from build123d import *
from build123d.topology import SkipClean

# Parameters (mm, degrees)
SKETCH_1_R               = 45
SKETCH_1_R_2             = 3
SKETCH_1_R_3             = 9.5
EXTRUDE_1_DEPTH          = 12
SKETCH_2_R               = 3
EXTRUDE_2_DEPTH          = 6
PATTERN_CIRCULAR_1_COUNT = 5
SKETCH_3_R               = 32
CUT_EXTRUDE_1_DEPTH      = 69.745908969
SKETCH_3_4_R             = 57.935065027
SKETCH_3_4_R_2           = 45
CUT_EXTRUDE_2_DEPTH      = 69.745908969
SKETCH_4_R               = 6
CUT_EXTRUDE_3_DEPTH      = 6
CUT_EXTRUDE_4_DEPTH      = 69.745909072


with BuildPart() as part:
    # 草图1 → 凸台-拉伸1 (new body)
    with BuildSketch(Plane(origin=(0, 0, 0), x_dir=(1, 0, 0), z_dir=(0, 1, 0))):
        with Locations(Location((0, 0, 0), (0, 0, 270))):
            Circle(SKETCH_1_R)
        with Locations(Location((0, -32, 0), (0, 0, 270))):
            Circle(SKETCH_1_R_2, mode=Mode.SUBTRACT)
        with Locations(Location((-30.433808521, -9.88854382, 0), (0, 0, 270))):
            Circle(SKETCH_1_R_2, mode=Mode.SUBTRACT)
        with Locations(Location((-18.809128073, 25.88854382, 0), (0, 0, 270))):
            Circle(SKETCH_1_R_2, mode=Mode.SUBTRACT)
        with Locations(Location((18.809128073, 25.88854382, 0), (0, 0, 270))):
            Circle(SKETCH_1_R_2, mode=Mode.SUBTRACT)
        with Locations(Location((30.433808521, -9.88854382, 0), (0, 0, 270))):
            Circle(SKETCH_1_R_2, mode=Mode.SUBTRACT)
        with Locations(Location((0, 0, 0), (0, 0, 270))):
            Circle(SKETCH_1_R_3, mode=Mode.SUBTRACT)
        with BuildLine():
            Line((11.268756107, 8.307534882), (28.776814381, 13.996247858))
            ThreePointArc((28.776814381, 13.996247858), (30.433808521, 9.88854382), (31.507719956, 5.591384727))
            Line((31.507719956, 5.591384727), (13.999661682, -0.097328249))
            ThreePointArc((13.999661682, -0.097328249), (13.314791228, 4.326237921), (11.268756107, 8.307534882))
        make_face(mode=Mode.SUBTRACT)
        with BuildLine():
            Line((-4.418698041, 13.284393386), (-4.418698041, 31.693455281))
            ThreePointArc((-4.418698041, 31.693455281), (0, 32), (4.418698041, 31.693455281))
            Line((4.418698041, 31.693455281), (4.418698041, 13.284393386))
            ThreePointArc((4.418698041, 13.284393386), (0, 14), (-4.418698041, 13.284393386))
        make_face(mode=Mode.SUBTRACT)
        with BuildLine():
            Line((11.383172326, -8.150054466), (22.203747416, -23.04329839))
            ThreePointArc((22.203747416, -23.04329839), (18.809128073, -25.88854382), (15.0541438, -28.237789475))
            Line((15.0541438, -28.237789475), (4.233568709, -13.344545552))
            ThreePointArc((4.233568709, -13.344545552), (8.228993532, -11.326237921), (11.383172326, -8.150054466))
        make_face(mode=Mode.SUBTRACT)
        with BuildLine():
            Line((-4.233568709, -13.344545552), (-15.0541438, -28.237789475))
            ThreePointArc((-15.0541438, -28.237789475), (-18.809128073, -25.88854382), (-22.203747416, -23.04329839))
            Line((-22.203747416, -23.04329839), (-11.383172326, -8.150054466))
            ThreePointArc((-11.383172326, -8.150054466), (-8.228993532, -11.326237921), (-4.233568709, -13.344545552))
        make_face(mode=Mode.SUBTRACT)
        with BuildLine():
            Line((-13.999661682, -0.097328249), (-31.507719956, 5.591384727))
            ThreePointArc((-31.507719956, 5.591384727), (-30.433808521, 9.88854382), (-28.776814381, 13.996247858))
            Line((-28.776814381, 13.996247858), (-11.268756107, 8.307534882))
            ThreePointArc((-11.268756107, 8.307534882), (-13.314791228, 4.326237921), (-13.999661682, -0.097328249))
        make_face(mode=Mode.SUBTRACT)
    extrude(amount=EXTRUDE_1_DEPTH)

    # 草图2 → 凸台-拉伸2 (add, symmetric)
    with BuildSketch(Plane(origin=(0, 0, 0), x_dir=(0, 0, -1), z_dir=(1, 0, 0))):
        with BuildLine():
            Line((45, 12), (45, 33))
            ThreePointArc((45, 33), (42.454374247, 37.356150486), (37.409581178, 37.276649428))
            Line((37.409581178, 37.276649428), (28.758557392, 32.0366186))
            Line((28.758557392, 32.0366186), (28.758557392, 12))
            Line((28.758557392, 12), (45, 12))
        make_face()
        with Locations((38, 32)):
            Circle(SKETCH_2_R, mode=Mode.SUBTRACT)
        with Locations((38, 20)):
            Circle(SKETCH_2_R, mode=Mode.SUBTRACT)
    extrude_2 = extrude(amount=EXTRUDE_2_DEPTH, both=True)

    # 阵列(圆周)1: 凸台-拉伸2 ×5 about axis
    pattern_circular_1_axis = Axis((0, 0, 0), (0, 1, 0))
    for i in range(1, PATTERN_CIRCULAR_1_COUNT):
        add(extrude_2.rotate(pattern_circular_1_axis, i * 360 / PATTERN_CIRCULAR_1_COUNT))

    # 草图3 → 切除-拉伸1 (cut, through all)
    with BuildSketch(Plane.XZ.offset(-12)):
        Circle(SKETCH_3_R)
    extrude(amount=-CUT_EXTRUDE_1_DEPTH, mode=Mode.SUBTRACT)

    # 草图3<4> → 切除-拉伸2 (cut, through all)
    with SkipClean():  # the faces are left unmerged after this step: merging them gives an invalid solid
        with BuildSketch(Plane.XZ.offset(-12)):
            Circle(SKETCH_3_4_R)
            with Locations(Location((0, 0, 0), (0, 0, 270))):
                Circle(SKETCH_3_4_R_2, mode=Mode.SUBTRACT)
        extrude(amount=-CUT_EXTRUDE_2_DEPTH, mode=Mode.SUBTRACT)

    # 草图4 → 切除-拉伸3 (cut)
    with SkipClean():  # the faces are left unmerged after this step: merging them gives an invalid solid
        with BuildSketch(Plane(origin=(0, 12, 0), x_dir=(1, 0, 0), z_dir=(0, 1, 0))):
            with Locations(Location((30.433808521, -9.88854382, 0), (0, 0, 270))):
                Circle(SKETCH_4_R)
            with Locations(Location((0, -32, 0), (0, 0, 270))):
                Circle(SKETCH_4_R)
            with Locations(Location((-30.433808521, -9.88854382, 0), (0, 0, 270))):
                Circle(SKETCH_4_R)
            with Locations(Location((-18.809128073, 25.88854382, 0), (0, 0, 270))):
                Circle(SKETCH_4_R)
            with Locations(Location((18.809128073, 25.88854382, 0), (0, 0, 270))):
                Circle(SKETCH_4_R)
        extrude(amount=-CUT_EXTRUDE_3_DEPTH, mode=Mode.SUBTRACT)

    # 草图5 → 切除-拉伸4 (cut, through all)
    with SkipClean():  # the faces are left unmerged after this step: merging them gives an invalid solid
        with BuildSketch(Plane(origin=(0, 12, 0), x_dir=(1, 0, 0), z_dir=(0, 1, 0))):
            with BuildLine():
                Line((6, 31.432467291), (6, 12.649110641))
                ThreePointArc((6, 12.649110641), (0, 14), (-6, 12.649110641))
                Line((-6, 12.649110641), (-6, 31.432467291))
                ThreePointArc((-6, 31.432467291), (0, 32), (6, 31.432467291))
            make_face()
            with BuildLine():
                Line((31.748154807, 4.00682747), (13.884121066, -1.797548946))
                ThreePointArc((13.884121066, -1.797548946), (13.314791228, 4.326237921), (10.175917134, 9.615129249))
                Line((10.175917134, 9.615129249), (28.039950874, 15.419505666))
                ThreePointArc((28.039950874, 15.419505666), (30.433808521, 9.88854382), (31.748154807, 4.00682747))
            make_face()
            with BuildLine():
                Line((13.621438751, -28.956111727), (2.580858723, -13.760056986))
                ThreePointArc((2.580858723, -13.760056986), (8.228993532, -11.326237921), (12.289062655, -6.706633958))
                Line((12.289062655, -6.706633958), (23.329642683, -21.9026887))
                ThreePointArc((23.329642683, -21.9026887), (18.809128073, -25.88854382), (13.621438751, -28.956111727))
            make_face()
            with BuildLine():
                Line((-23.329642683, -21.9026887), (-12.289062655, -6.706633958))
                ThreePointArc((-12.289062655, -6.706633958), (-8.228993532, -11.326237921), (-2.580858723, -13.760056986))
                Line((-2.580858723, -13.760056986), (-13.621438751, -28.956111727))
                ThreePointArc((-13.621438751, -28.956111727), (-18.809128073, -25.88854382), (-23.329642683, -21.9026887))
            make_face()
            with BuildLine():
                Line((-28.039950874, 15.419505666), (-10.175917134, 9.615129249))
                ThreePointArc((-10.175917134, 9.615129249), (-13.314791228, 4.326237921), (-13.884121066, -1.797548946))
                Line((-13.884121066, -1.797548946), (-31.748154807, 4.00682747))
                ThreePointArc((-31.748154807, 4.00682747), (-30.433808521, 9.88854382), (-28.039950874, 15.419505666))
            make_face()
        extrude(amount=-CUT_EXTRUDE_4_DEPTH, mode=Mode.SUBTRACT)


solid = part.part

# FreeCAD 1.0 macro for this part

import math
import FreeCAD as App
import Part
import Sketcher
from FreeCAD import Vector
Q = App.Units.Quantity

doc = App.newDocument("Part")
body = doc.addObject("PartDesign::Body", "Body")

# Sketch on XZ plane
sketch1 = body.newObject("Sketcher::SketchObject", "Sketch")
sketch1.AttachmentSupport = (doc.getObject("XZ_Plane"), [""])
sketch1.MapMode = "FlatFace"
sketch1.addGeometry(Part.Circle(Vector(0, 0, 0), Vector(0, 0, 1), 45), False)
sketch1.addGeometry(Part.Circle(Vector(-18.8, -25.9, 0), Vector(0, 0, 1), 3), False)
sketch1.addGeometry(Part.ArcOfCircle(Part.Circle(Vector(0, 0, 0), Vector(0, 0, 1), 14), math.radians(180), math.radians(216)), False)
sketch1.addGeometry(Part.LineSegment(Vector(-14, 0.1, 0), Vector(-31.5, -5.6, 0)), False)
sketch1.addGeometry(Part.ArcOfCircle(Part.Circle(Vector(0, 0, 0), Vector(0, 0, 1), 32), math.radians(-169.94), math.radians(-154.06)), False)
sketch1.addGeometry(Part.LineSegment(Vector(-28.8, -14, 0), Vector(-11.3, -8.3, 0)), False)
sketch1.addGeometry(Part.ArcOfCircle(Part.Circle(Vector(0, 0, 0), Vector(0, 0, 1), 14), math.radians(-108), math.radians(-72)), False)
sketch1.addGeometry(Part.LineSegment(Vector(-4.4, -13.3, 0), Vector(-4.4, -31.7, 0)), False)
sketch1.addGeometry(Part.ArcOfCircle(Part.Circle(Vector(0, 0, 0), Vector(0, 0, 1), 32), math.radians(-97.94), math.radians(-82.06)), False)
sketch1.addGeometry(Part.LineSegment(Vector(4.4, -31.7, 0), Vector(4.4, -13.3, 0)), False)
sketch1.addGeometry(Part.Circle(Vector(0, 0, 0), Vector(0, 0, 1), 9.5), False)
sketch1.addGeometry(Part.Circle(Vector(-30.4, 9.9, 0), Vector(0, 0, 1), 3), False)
sketch1.addGeometry(Part.ArcOfCircle(Part.Circle(Vector(0, 0, 0), Vector(0, 0, 1), 14), math.radians(108), math.radians(144)), False)
sketch1.addGeometry(Part.LineSegment(Vector(-4.2, 13.3, 0), Vector(-15.1, 28.2, 0)), False)
sketch1.addGeometry(Part.ArcOfCircle(Part.Circle(Vector(0, 0, 0), Vector(0, 0, 1), 32), math.radians(118.06), math.radians(133.94)), False)
sketch1.addGeometry(Part.LineSegment(Vector(-22.2, 23, 0), Vector(-11.4, 8.2, 0)), False)
sketch1.addGeometry(Part.Circle(Vector(18.8, -25.9, 0), Vector(0, 0, 1), 3), False)
sketch1.addGeometry(Part.ArcOfCircle(Part.Circle(Vector(0, 0, 0), Vector(0, 0, 1), 14), math.radians(-36), math.radians(0)), False)
sketch1.addGeometry(Part.LineSegment(Vector(11.3, -8.3, 0), Vector(28.8, -14, 0)), False)
sketch1.addGeometry(Part.ArcOfCircle(Part.Circle(Vector(0, 0, 0), Vector(0, 0, 1), 32), math.radians(-25.94), math.radians(-10.06)), False)
sketch1.addGeometry(Part.LineSegment(Vector(31.5, -5.6, 0), Vector(14, 0.1, 0)), False)
sketch1.addGeometry(Part.ArcOfCircle(Part.Circle(Vector(0, 0, 0), Vector(0, 0, 1), 14), math.radians(36), math.radians(72)), False)
sketch1.addGeometry(Part.LineSegment(Vector(11.4, 8.2, 0), Vector(22.2, 23, 0)), False)
sketch1.addGeometry(Part.ArcOfCircle(Part.Circle(Vector(0, 0, 0), Vector(0, 0, 1), 32), math.radians(46.06), math.radians(61.94)), False)
sketch1.addGeometry(Part.LineSegment(Vector(15.1, 28.2, 0), Vector(4.2, 13.3, 0)), False)
sketch1.addGeometry(Part.Circle(Vector(0, 32, 0), Vector(0, 0, 1), 3), False)
sketch1.addGeometry(Part.Circle(Vector(30.4, 9.9, 0), Vector(0, 0, 1), 3), False)
sketch1.addConstraint(Sketcher.Constraint("Coincident", 2, 1, 3, 1))
sketch1.addConstraint(Sketcher.Constraint("Coincident", 3, 2, 4, 1))
sketch1.addConstraint(Sketcher.Constraint("Coincident", 4, 2, 5, 1))
sketch1.addConstraint(Sketcher.Constraint("Coincident", 5, 2, 2, 2))
sketch1.addConstraint(Sketcher.Constraint("Coincident", 6, 1, 7, 1))
sketch1.addConstraint(Sketcher.Constraint("Coincident", 7, 2, 8, 1))
sketch1.addConstraint(Sketcher.Constraint("Coincident", 8, 2, 9, 1))
sketch1.addConstraint(Sketcher.Constraint("Coincident", 9, 2, 6, 2))
sketch1.addConstraint(Sketcher.Constraint("Coincident", 12, 1, 13, 1))
sketch1.addConstraint(Sketcher.Constraint("Coincident", 13, 2, 14, 1))
sketch1.addConstraint(Sketcher.Constraint("Coincident", 14, 2, 15, 1))
sketch1.addConstraint(Sketcher.Constraint("Coincident", 15, 2, 12, 2))
sketch1.addConstraint(Sketcher.Constraint("Coincident", 17, 1, 18, 1))
sketch1.addConstraint(Sketcher.Constraint("Coincident", 18, 2, 19, 1))
sketch1.addConstraint(Sketcher.Constraint("Coincident", 19, 2, 20, 1))
sketch1.addConstraint(Sketcher.Constraint("Coincident", 20, 2, 17, 2))
sketch1.addConstraint(Sketcher.Constraint("Coincident", 21, 1, 22, 1))
sketch1.addConstraint(Sketcher.Constraint("Coincident", 22, 2, 23, 1))
sketch1.addConstraint(Sketcher.Constraint("Coincident", 23, 2, 24, 1))
sketch1.addConstraint(Sketcher.Constraint("Coincident", 24, 2, 21, 2))
sketch1.addConstraint(Sketcher.Constraint("Vertical", 7))
sketch1.addConstraint(Sketcher.Constraint("Vertical", 9))
sketch1.addConstraint(Sketcher.Constraint("Coincident", 0, 3, -1, 1))
sketch1.addConstraint(Sketcher.Constraint("Coincident", 2, 3, -1, 1))
sketch1.addConstraint(Sketcher.Constraint("Coincident", 4, 3, -1, 1))
sketch1.addConstraint(Sketcher.Constraint("Coincident", 6, 3, -1, 1))
sketch1.addConstraint(Sketcher.Constraint("Coincident", 8, 3, -1, 1))
sketch1.addConstraint(Sketcher.Constraint("Coincident", 10, 3, -1, 1))
sketch1.addConstraint(Sketcher.Constraint("Coincident", 12, 3, -1, 1))
sketch1.addConstraint(Sketcher.Constraint("Coincident", 14, 3, -1, 1))
sketch1.addConstraint(Sketcher.Constraint("Coincident", 17, 3, -1, 1))
sketch1.addConstraint(Sketcher.Constraint("Coincident", 19, 3, -1, 1))
sketch1.addConstraint(Sketcher.Constraint("Coincident", 21, 3, -1, 1))
sketch1.addConstraint(Sketcher.Constraint("Coincident", 23, 3, -1, 1))
sketch1.addConstraint(Sketcher.Constraint("Equal", 2, 6))
sketch1.addConstraint(Sketcher.Constraint("Equal", 4, 8))
sketch1.addConstraint(Sketcher.Constraint("Equal", 1, 11))
sketch1.addConstraint(Sketcher.Constraint("Equal", 6, 12))
sketch1.addConstraint(Sketcher.Constraint("Equal", 8, 14))
sketch1.addConstraint(Sketcher.Constraint("Equal", 11, 16))
sketch1.addConstraint(Sketcher.Constraint("Equal", 12, 17))
sketch1.addConstraint(Sketcher.Constraint("Equal", 14, 19))
sketch1.addConstraint(Sketcher.Constraint("Equal", 17, 21))
sketch1.addConstraint(Sketcher.Constraint("Equal", 19, 23))
sketch1.addConstraint(Sketcher.Constraint("Equal", 16, 25))
sketch1.addConstraint(Sketcher.Constraint("Equal", 25, 26))
sketch1.addConstraint(Sketcher.Constraint("Symmetric", 1, 3, 16, 3, -2))
sketch1.addConstraint(Sketcher.Constraint("Symmetric", 11, 3, 26, 3, -2))
sketch1.addConstraint(Sketcher.Constraint("PointOnObject", 25, 3, -2))
sketch1.addConstraint(Sketcher.Constraint("Parallel", 3, 5))
sketch1.addConstraint(Sketcher.Constraint("Parallel", 13, 15))
sketch1.addConstraint(Sketcher.Constraint("Parallel", 18, 20))
sketch1.addConstraint(Sketcher.Constraint("Parallel", 22, 24))
sketch1.addConstraint(Sketcher.Constraint("Horizontal", 7, 2, 8, 2))
sketch1.addConstraint(Sketcher.Constraint("Horizontal", 5, 2, 17, 1))
sketch1.addConstraint(Sketcher.Constraint("Horizontal", 4, 2, 18, 2))
sketch1.addConstraint(Sketcher.Constraint("Horizontal", 3, 2, 19, 2))
sketch1.addConstraint(Sketcher.Constraint("Horizontal", 15, 2, 21, 1))
sketch1.addConstraint(Sketcher.Constraint("Horizontal", 14, 2, 22, 2))
sketch1.addConstraint(Sketcher.Constraint("Horizontal", 13, 2, 23, 2))
sketch1.addConstraint(Sketcher.Constraint("Equal", 3, 5))
sketch1.addConstraint(Sketcher.Constraint("Equal", 5, 13))
sketch1.addConstraint(Sketcher.Constraint("Equal", 13, 15))
sketch1.addConstraint(Sketcher.Constraint("Diameter", 0, Q("90 mm")))
sketch1.addConstraint(Sketcher.Constraint("Diameter", 1, Q("6 mm")))
sketch1.addConstraint(Sketcher.Constraint("Diameter", 10, Q("19 mm")))
sketch1.addConstraint(Sketcher.Constraint("Radius", 2, Q("14 mm")))
sketch1.addConstraint(Sketcher.Constraint("Radius", 4, Q("32 mm")))
sketch1.addConstraint(Sketcher.Constraint("Angle", 3, Q("-162 deg")))
sketch1.addConstraint(Sketcher.Constraint("Angle", 13, Q("126 deg")))
sketch1.addConstraint(Sketcher.Constraint("DistanceY", -1, 1, 25, 3, Q("32 mm")))
sketch1.addConstraint(Sketcher.Constraint("DistanceY", 7, 2, 7, 1, Q("18.409062 mm")))
sketch1.addConstraint(Sketcher.Constraint("DistanceY", -1, 1, 14, 2, Q("23.043298 mm")))
sketch1.addConstraint(Sketcher.Constraint("DistanceX", 1, 3, -1, 1, Q("18.809128 mm")))
sketch1.addConstraint(Sketcher.Constraint("DistanceX", 11, 3, -1, 1, Q("30.433809 mm")))
sketch1.addConstraint(Sketcher.Constraint("DistanceY", 3, 2, 11, 3, Q("15.479929 mm")))
sketch1.addConstraint(Sketcher.Constraint("DistanceY", 1, 3, 3, 2, Q("20.297159 mm")))
pad1 = body.newObject("PartDesign::Pad", "Pad")
pad1.Profile = sketch1
pad1.Length = 12
pad1.Reversed = True

# Sketch on YZ plane
sketch2 = body.newObject("Sketcher::SketchObject", "Sketch001")
sketch2.AttachmentSupport = (doc.getObject("YZ_Plane"), [""])
sketch2.MapMode = "FlatFace"
sketch2.addGeometry(Part.LineSegment(Vector(12, -45, 0), Vector(33, -45, 0)), False)
sketch2.addGeometry(Part.ArcOfCircle(Part.Circle(Vector(33, -40, 0), Vector(0, 0, 1), 5), math.radians(-90), math.radians(31)), False)
sketch2.addGeometry(Part.LineSegment(Vector(37.3, -37.4, 0), Vector(32, -28.8, 0)), False)
sketch2.addGeometry(Part.LineSegment(Vector(32, -28.8, 0), Vector(12, -28.8, 0)), False)
sketch2.addGeometry(Part.LineSegment(Vector(12, -28.8, 0), Vector(12, -45, 0)), False)
sketch2.addGeometry(Part.Circle(Vector(20, -38, 0), Vector(0, 0, 1), 3), False)
sketch2.addGeometry(Part.Circle(Vector(32, -38, 0), Vector(0, 0, 1), 3), False)
sketch2.addConstraint(Sketcher.Constraint("Tangent", 0, 2, 1, 1))
sketch2.addConstraint(Sketcher.Constraint("Tangent", 1, 2, 2, 1))
sketch2.addConstraint(Sketcher.Constraint("Coincident", 2, 2, 3, 1))
sketch2.addConstraint(Sketcher.Constraint("Coincident", 3, 2, 4, 1))
sketch2.addConstraint(Sketcher.Constraint("Coincident", 4, 2, 0, 1))
sketch2.addConstraint(Sketcher.Constraint("Horizontal", 0))
sketch2.addConstraint(Sketcher.Constraint("Horizontal", 3))
sketch2.addConstraint(Sketcher.Constraint("Vertical", 4))
sketch2.addConstraint(Sketcher.Constraint("Equal", 5, 6))
sketch2.addConstraint(Sketcher.Constraint("Horizontal", 5, 3, 6, 3))
sketch2.addConstraint(Sketcher.Constraint("Diameter", 5, Q("6 mm")))
sketch2.addConstraint(Sketcher.Constraint("Radius", 1, Q("5 mm")))
sketch2.addConstraint(Sketcher.Constraint("DistanceX", 0, 1, 0, 2, Q("21 mm")))
sketch2.addConstraint(Sketcher.Constraint("DistanceX", -1, 1, 1, 3, Q("33 mm")))
sketch2.addConstraint(Sketcher.Constraint("DistanceY", 1, 3, -1, 1, Q("40 mm")))
sketch2.addConstraint(Sketcher.Constraint("DistanceX", -1, 1, 5, 3, Q("20 mm")))
sketch2.addConstraint(Sketcher.Constraint("DistanceY", 5, 3, -1, 1, Q("38 mm")))
sketch2.addConstraint(Sketcher.Constraint("DistanceX", -1, 1, 6, 3, Q("32 mm")))
sketch2.addConstraint(Sketcher.Constraint("DistanceX", 3, 2, 3, 1, Q("20.036619 mm")))
sketch2.addConstraint(Sketcher.Constraint("DistanceY", 4, 2, 4, 1, Q("16.241443 mm")))
pad2 = body.newObject("PartDesign::Pad", "Pad001")
pad2.Profile = sketch2
pad2.Length = 12
pad2.Midplane = True
doc.recompute()

polarpattern = body.newObject("PartDesign::PolarPattern", "PolarPattern")
polarpattern.Originals = [pad2]
polarpattern.Axis = (doc.getObject("Y_Axis"), [""])
polarpattern.Angle = 360
polarpattern.Occurrences = 5
body.Tip = polarpattern

# Sketch on XZ plane
sketch3 = body.newObject("Sketcher::SketchObject", "Sketch002")
sketch3.AttachmentSupport = (doc.getObject("XZ_Plane"), [""])
sketch3.MapMode = "FlatFace"
sketch3.AttachmentOffset = App.Placement(Vector(0, 0, -12), App.Rotation())
sketch3.addGeometry(Part.Circle(Vector(0, 0, 0), Vector(0, 0, 1), 32), False)
sketch3.addConstraint(Sketcher.Constraint("Coincident", 0, 3, -1, 1))
sketch3.addConstraint(Sketcher.Constraint("Diameter", 0, Q("64 mm")))
pocket1 = body.newObject("PartDesign::Pocket", "Pocket")
pocket1.Profile = sketch3
pocket1.Type = "ThroughAll"

# Sketch on XZ plane
sketch4 = body.newObject("Sketcher::SketchObject", "Sketch003")
sketch4.AttachmentSupport = (doc.getObject("XZ_Plane"), [""])
sketch4.MapMode = "FlatFace"
sketch4.AttachmentOffset = App.Placement(Vector(0, 0, -12), App.Rotation())
sketch4.addGeometry(Part.Circle(Vector(0, 0, 0), Vector(0, 0, 1), 58), False)
sketch4.addGeometry(Part.Circle(Vector(0, 0, 0), Vector(0, 0, 1), 45), False)
sketch4.addConstraint(Sketcher.Constraint("Coincident", 0, 3, -1, 1))
sketch4.addConstraint(Sketcher.Constraint("Coincident", 1, 3, -1, 1))
sketch4.addConstraint(Sketcher.Constraint("Diameter", 1, Q("90 mm")))
sketch4.addConstraint(Sketcher.Constraint("Diameter", 0, Q("115.87013 mm")))
pocket2 = body.newObject("PartDesign::Pocket", "Pocket001")
pocket2.Profile = sketch4
pocket2.Type = "ThroughAll"

# Sketch on XZ plane
sketch5 = body.newObject("Sketcher::SketchObject", "Sketch004")
sketch5.AttachmentSupport = (doc.getObject("XZ_Plane"), [""])
sketch5.MapMode = "FlatFace"
sketch5.AttachmentOffset = App.Placement(Vector(0, 0, -12), App.Rotation())
sketch5.addGeometry(Part.Circle(Vector(30, 10, 0), Vector(0, 0, 1), 6), False)
sketch5.addGeometry(Part.Circle(Vector(0, 32, 0), Vector(0, 0, 1), 6), False)
sketch5.addGeometry(Part.Circle(Vector(-30, 10, 0), Vector(0, 0, 1), 6), False)
sketch5.addGeometry(Part.Circle(Vector(-19, -26, 0), Vector(0, 0, 1), 6), False)
sketch5.addGeometry(Part.Circle(Vector(19, -26, 0), Vector(0, 0, 1), 6), False)
sketch5.addConstraint(Sketcher.Constraint("Equal", 0, 1))
sketch5.addConstraint(Sketcher.Constraint("Equal", 1, 2))
sketch5.addConstraint(Sketcher.Constraint("Equal", 2, 3))
sketch5.addConstraint(Sketcher.Constraint("Equal", 3, 4))
sketch5.addConstraint(Sketcher.Constraint("Symmetric", 0, 3, 2, 3, -2))
sketch5.addConstraint(Sketcher.Constraint("Symmetric", 3, 3, 4, 3, -2))
sketch5.addConstraint(Sketcher.Constraint("PointOnObject", 1, 3, -2))
sketch5.addConstraint(Sketcher.Constraint("Diameter", 0, Q("12 mm")))
sketch5.addConstraint(Sketcher.Constraint("DistanceY", -1, 1, 1, 3, Q("32 mm")))
sketch5.addConstraint(Sketcher.Constraint("DistanceX", -1, 1, 0, 3, Q("30.433809 mm")))
sketch5.addConstraint(Sketcher.Constraint("DistanceX", 3, 3, -1, 1, Q("18.809128 mm")))
sketch5.addConstraint(Sketcher.Constraint("DistanceY", -1, 1, 0, 3, Q("9.888544 mm")))
sketch5.addConstraint(Sketcher.Constraint("DistanceY", 3, 3, -1, 1, Q("25.888544 mm")))
pocket3 = body.newObject("PartDesign::Pocket", "Pocket002")
pocket3.Profile = sketch5
pocket3.Length = 6
pocket3.Reversed = True

# Sketch on XZ plane
sketch6 = body.newObject("Sketcher::SketchObject", "Sketch005")
sketch6.AttachmentSupport = (doc.getObject("XZ_Plane"), [""])
sketch6.MapMode = "FlatFace"
sketch6.AttachmentOffset = App.Placement(Vector(0, 0, -12), App.Rotation())
sketch6.addGeometry(Part.LineSegment(Vector(6, -13, 0), Vector(6, -31, 0)), False)
sketch6.addGeometry(Part.ArcOfCircle(Part.Circle(Vector(0, 0, 0), Vector(0, 0, 1), 32), math.radians(-101), math.radians(-79)), False)
sketch6.addGeometry(Part.LineSegment(Vector(-6, -31, 0), Vector(-6, -13, 0)), False)
sketch6.addGeometry(Part.ArcOfCircle(Part.Circle(Vector(0, 0, 0), Vector(0, 0, 1), 14), math.radians(-115), math.radians(-65)), False)
sketch6.addGeometry(Part.LineSegment(Vector(14, 2, 0), Vector(32, -4, 0)), False)
sketch6.addGeometry(Part.ArcOfCircle(Part.Circle(Vector(0, 0, 0), Vector(0, 0, 1), 32), math.radians(-29), math.radians(-7)), False)
sketch6.addGeometry(Part.LineSegment(Vector(28, -15, 0), Vector(10, -10, 0)), False)
sketch6.addGeometry(Part.ArcOfCircle(Part.Circle(Vector(0, 0, 0), Vector(0, 0, 1), 14), math.radians(-43), math.radians(7)), False)
sketch6.addGeometry(Part.LineSegment(Vector(3, 14, 0), Vector(14, 29, 0)), False)
sketch6.addGeometry(Part.ArcOfCircle(Part.Circle(Vector(0, 0, 0), Vector(0, 0, 1), 32), math.radians(43), math.radians(65)), False)
sketch6.addGeometry(Part.LineSegment(Vector(23, 22, 0), Vector(12, 7, 0)), False)
sketch6.addGeometry(Part.ArcOfCircle(Part.Circle(Vector(0, 0, 0), Vector(0, 0, 1), 14), math.radians(29), math.radians(79)), False)
sketch6.addGeometry(Part.LineSegment(Vector(-12, 7, 0), Vector(-23, 22, 0)), False)
sketch6.addGeometry(Part.ArcOfCircle(Part.Circle(Vector(0, 0, 0), Vector(0, 0, 1), 32), math.radians(115), math.radians(137)), False)
sketch6.addGeometry(Part.LineSegment(Vector(-14, 29, 0), Vector(-3, 14, 0)), False)
sketch6.addGeometry(Part.ArcOfCircle(Part.Circle(Vector(0, 0, 0), Vector(0, 0, 1), 14), math.radians(101), math.radians(151)), False)
sketch6.addGeometry(Part.LineSegment(Vector(-10, -10, 0), Vector(-28, -15, 0)), False)
sketch6.addGeometry(Part.ArcOfCircle(Part.Circle(Vector(0, 0, 0), Vector(0, 0, 1), 32), math.radians(-173), math.radians(-151)), False)
sketch6.addGeometry(Part.LineSegment(Vector(-32, -4, 0), Vector(-14, 2, 0)), False)
sketch6.addGeometry(Part.ArcOfCircle(Part.Circle(Vector(0, 0, 0), Vector(0, 0, 1), 14), math.radians(173), math.radians(223)), False)
sketch6.addConstraint(Sketcher.Constraint("Coincident", 0, 2, 1, 2))
sketch6.addConstraint(Sketcher.Constraint("Coincident", 1, 1, 2, 1))
sketch6.addConstraint(Sketcher.Constraint("Coincident", 2, 2, 3, 1))
sketch6.addConstraint(Sketcher.Constraint("Coincident", 3, 2, 0, 1))
sketch6.addConstraint(Sketcher.Constraint("Coincident", 4, 2, 5, 2))
sketch6.addConstraint(Sketcher.Constraint("Coincident", 5, 1, 6, 1))
sketch6.addConstraint(Sketcher.Constraint("Coincident", 6, 2, 7, 1))
sketch6.addConstraint(Sketcher.Constraint("Coincident", 7, 2, 4, 1))
sketch6.addConstraint(Sketcher.Constraint("Coincident", 8, 2, 9, 2))
sketch6.addConstraint(Sketcher.Constraint("Coincident", 9, 1, 10, 1))
sketch6.addConstraint(Sketcher.Constraint("Coincident", 10, 2, 11, 1))
sketch6.addConstraint(Sketcher.Constraint("Coincident", 11, 2, 8, 1))
sketch6.addConstraint(Sketcher.Constraint("Coincident", 12, 2, 13, 2))
sketch6.addConstraint(Sketcher.Constraint("Coincident", 13, 1, 14, 1))
sketch6.addConstraint(Sketcher.Constraint("Coincident", 14, 2, 15, 1))
sketch6.addConstraint(Sketcher.Constraint("Coincident", 15, 2, 12, 1))
sketch6.addConstraint(Sketcher.Constraint("Coincident", 16, 2, 17, 2))
sketch6.addConstraint(Sketcher.Constraint("Coincident", 17, 1, 18, 1))
sketch6.addConstraint(Sketcher.Constraint("Coincident", 18, 2, 19, 1))
sketch6.addConstraint(Sketcher.Constraint("Coincident", 19, 2, 16, 1))
sketch6.addConstraint(Sketcher.Constraint("Vertical", 0))
sketch6.addConstraint(Sketcher.Constraint("Vertical", 2))
sketch6.addConstraint(Sketcher.Constraint("Coincident", 1, 3, -1, 1))
sketch6.addConstraint(Sketcher.Constraint("Coincident", 3, 3, -1, 1))
sketch6.addConstraint(Sketcher.Constraint("Coincident", 5, 3, -1, 1))
sketch6.addConstraint(Sketcher.Constraint("Coincident", 7, 3, -1, 1))
sketch6.addConstraint(Sketcher.Constraint("Coincident", 9, 3, -1, 1))
sketch6.addConstraint(Sketcher.Constraint("Coincident", 11, 3, -1, 1))
sketch6.addConstraint(Sketcher.Constraint("Coincident", 13, 3, -1, 1))
sketch6.addConstraint(Sketcher.Constraint("Coincident", 15, 3, -1, 1))
sketch6.addConstraint(Sketcher.Constraint("Coincident", 17, 3, -1, 1))
sketch6.addConstraint(Sketcher.Constraint("Coincident", 19, 3, -1, 1))
sketch6.addConstraint(Sketcher.Constraint("Equal", 1, 5))
sketch6.addConstraint(Sketcher.Constraint("Equal", 3, 7))
sketch6.addConstraint(Sketcher.Constraint("Equal", 5, 9))
sketch6.addConstraint(Sketcher.Constraint("Equal", 7, 11))
sketch6.addConstraint(Sketcher.Constraint("Equal", 9, 13))
sketch6.addConstraint(Sketcher.Constraint("Equal", 11, 15))
sketch6.addConstraint(Sketcher.Constraint("Equal", 13, 17))
sketch6.addConstraint(Sketcher.Constraint("Equal", 15, 19))
sketch6.addConstraint(Sketcher.Constraint("Parallel", 4, 6))
sketch6.addConstraint(Sketcher.Constraint("Parallel", 8, 10))
sketch6.addConstraint(Sketcher.Constraint("Parallel", 12, 14))
sketch6.addConstraint(Sketcher.Constraint("Parallel", 16, 18))
sketch6.addConstraint(Sketcher.Constraint("Horizontal", 0, 2, 1, 1))
sketch6.addConstraint(Sketcher.Constraint("Horizontal", 9, 1, 12, 2))
sketch6.addConstraint(Sketcher.Constraint("Horizontal", 8, 2, 13, 1))
sketch6.addConstraint(Sketcher.Constraint("Horizontal", 11, 2, 14, 2))
sketch6.addConstraint(Sketcher.Constraint("Horizontal", 5, 1, 16, 2))
sketch6.addConstraint(Sketcher.Constraint("Horizontal", 4, 2, 17, 1))
sketch6.addConstraint(Sketcher.Constraint("Horizontal", 7, 2, 18, 2))
sketch6.addConstraint(Sketcher.Constraint("Equal", 4, 6))
sketch6.addConstraint(Sketcher.Constraint("Equal", 6, 8))
sketch6.addConstraint(Sketcher.Constraint("Equal", 8, 10))
sketch6.addConstraint(Sketcher.Constraint("Radius", 1, Q("32 mm")))
sketch6.addConstraint(Sketcher.Constraint("Radius", 3, Q("14 mm")))
sketch6.addConstraint(Sketcher.Constraint("Angle", 4, Q("-18 deg")))
sketch6.addConstraint(Sketcher.Constraint("Angle", 8, Q("54 deg")))
sketch6.addConstraint(Sketcher.Constraint("DistanceX", -1, 1, 0, 2, Q("6 mm")))
sketch6.addConstraint(Sketcher.Constraint("DistanceX", 12, 2, 11, 2, Q("25.910501 mm")))
pocket4 = body.newObject("PartDesign::Pocket", "Pocket003")
pocket4.Profile = sketch6
pocket4.Type = "ThroughAll"
pocket4.Reversed = True

doc.recompute()
